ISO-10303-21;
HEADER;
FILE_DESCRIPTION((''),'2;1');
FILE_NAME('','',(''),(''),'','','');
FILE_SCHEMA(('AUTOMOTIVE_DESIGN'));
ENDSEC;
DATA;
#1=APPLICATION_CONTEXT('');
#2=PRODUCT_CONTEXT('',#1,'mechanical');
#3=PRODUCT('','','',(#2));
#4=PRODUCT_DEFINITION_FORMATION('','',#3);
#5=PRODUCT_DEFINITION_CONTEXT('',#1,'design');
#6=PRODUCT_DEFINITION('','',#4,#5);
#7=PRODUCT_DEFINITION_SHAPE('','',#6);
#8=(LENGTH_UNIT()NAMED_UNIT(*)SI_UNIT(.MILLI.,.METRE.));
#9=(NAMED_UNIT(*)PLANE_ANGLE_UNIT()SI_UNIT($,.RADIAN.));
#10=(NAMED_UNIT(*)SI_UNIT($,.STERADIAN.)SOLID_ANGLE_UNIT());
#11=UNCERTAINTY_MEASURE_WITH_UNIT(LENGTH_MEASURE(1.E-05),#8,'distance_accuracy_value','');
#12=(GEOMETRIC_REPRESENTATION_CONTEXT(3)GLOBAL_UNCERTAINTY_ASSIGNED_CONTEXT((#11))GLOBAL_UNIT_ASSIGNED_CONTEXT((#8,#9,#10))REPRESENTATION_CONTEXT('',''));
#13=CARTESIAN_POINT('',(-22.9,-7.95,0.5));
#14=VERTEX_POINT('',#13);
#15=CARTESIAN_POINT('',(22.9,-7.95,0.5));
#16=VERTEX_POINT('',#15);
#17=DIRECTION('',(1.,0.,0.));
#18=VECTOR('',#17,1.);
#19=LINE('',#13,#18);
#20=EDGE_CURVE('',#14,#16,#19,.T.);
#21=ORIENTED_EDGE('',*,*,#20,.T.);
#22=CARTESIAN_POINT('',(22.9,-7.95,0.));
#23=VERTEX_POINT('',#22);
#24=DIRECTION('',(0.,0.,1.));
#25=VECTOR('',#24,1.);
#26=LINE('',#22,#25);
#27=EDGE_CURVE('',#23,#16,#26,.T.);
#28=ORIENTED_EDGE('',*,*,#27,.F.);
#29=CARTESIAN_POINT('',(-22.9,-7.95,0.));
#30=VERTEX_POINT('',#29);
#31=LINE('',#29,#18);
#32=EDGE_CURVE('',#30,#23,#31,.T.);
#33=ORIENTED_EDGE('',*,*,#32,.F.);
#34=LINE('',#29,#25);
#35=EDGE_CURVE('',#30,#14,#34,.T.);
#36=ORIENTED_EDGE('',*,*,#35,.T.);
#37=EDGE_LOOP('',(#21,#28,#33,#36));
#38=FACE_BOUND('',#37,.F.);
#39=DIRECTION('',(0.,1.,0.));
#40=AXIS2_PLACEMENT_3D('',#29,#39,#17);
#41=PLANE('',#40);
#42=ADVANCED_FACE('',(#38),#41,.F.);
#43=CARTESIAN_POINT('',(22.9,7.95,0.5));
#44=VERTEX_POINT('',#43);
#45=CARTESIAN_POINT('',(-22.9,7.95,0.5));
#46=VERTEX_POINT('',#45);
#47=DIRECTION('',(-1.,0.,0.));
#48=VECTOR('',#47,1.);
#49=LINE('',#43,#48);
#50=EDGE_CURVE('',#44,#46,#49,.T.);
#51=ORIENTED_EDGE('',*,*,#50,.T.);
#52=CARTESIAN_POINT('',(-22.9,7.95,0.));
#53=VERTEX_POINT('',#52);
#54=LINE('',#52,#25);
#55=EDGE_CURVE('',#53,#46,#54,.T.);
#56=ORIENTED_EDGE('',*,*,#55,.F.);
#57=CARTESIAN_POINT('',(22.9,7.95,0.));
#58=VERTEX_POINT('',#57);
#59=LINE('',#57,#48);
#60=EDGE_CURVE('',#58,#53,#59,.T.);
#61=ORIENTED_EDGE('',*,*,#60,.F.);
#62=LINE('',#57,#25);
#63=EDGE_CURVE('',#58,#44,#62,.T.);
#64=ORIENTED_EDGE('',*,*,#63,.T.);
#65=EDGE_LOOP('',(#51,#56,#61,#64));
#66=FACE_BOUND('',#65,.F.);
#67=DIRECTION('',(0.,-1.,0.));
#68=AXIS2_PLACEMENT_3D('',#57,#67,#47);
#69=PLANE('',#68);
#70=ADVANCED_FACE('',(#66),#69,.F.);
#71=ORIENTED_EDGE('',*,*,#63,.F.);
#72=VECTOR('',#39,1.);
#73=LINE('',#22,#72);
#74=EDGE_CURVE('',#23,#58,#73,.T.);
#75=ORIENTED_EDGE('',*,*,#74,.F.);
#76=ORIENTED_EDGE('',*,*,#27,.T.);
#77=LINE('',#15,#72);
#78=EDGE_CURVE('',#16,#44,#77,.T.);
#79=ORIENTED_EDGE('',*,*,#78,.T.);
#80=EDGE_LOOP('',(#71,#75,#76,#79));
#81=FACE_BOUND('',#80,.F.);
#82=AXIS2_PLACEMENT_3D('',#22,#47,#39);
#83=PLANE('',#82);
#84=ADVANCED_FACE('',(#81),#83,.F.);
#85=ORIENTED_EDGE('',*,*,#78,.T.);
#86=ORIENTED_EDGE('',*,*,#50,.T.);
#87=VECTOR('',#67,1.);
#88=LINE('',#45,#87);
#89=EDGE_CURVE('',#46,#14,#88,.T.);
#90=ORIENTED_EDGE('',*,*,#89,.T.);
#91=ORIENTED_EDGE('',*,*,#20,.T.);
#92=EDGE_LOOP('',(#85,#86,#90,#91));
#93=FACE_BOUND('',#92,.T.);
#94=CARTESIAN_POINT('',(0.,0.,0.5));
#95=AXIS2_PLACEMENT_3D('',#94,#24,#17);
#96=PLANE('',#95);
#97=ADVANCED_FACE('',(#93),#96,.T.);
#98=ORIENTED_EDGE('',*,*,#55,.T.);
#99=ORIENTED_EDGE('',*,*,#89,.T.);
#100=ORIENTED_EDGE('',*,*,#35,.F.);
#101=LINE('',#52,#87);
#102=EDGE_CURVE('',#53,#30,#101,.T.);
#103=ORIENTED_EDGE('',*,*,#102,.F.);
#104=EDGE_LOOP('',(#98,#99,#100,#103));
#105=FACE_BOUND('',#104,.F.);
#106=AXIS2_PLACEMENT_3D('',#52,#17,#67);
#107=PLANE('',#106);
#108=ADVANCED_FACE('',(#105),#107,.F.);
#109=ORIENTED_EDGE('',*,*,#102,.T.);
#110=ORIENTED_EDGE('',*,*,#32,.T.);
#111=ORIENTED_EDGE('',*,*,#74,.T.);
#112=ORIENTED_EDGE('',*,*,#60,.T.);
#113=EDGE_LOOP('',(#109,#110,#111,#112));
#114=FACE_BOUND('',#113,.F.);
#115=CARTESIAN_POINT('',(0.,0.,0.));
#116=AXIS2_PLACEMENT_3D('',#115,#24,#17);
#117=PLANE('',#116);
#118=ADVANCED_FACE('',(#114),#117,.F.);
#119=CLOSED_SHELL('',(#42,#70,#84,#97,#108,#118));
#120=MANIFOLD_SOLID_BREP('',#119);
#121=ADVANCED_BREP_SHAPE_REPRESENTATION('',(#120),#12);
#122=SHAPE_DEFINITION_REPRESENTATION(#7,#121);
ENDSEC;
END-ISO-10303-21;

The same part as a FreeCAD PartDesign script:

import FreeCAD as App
import Part
import Sketcher

V = App.Vector


def add_polygon(sketch, points):
    """Adds a closed chain of lines whose ends are joined by coincident constraints."""
    first, n = sketch.GeometryCount, len(points)
    for a, b in zip(points, points[1:] + points[:1]):
        sketch.addGeometry(Part.LineSegment(App.Vector(*a, 0), App.Vector(*b, 0)), False)
    for i in range(n):
        sketch.addConstraint(Sketcher.Constraint("Coincident", first + i, 2, first + (i + 1) % n, 1))

doc = App.newDocument("Part")
body = doc.addObject("PartDesign::Body", "Body")

sketch1 = body.newObject("Sketcher::SketchObject", "Sketch")
sketch1.AttachmentSupport = (doc.getObject("XY_Plane"), [""])
sketch1.MapMode = "FlatFace"
add_polygon(sketch1, [(-23, 8), (-23, -8), (23, -8), (23, 8)])
sketch1.addConstraint([
    Sketcher.Constraint("Vertical", 0),
    Sketcher.Constraint("Horizontal", 1),
    Sketcher.Constraint("Vertical", 2),
    Sketcher.Constraint("Horizontal", 3),
    Sketcher.Constraint("Symmetric", 0, 2, 2, 2, -1, 1),
    Sketcher.Constraint("DistanceX", 1, 1, 1, 2, 45.8),
    Sketcher.Constraint("DistanceY", 0, 2, 0, 1, 15.9),
])
pad1 = body.newObject("PartDesign::Pad", "Pad")
pad1.Profile = sketch1
pad1.Length = 0.5

doc.recompute()
